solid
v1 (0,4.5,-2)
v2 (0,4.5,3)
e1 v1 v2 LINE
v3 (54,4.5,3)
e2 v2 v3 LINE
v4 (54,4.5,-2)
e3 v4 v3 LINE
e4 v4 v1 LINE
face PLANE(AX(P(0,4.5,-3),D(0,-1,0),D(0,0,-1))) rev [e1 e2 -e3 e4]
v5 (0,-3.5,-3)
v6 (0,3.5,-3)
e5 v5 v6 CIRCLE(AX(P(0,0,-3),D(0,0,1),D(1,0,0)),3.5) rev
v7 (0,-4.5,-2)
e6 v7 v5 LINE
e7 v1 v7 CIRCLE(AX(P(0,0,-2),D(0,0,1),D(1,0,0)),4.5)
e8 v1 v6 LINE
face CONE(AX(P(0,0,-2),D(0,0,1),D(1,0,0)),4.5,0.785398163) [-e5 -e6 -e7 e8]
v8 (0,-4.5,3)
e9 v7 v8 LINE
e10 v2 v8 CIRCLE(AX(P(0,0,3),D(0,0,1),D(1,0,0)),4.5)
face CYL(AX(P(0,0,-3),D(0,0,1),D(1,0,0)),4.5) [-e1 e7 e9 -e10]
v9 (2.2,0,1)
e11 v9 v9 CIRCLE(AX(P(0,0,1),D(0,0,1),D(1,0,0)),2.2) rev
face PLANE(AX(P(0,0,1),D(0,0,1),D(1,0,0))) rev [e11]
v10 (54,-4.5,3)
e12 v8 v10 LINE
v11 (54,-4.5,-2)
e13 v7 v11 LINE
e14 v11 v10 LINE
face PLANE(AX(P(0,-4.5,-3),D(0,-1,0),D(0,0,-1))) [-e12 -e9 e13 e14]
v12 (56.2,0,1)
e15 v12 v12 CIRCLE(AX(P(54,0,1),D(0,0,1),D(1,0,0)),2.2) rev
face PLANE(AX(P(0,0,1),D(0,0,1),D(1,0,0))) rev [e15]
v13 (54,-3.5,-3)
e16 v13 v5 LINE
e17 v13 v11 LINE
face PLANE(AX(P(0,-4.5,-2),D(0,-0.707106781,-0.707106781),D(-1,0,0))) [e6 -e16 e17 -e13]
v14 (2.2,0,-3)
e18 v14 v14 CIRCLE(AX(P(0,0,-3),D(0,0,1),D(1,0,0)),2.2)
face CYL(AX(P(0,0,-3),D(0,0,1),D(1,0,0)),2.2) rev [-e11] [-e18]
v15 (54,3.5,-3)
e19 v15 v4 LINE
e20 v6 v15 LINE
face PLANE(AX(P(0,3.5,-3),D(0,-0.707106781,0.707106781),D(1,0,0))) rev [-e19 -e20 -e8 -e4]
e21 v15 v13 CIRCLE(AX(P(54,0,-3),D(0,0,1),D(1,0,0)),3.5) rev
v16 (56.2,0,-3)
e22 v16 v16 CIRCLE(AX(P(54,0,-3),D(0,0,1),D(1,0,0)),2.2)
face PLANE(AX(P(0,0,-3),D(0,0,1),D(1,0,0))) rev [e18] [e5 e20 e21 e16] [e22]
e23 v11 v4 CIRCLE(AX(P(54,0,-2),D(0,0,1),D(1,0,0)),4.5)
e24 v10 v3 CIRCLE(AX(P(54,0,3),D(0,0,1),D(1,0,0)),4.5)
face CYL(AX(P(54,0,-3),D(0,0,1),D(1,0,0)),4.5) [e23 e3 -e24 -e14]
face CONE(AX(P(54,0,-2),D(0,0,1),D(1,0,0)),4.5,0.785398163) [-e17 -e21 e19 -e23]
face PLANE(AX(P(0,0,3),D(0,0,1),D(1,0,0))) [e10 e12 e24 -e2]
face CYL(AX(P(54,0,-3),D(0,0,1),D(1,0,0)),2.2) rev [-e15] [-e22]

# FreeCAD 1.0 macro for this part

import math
import FreeCAD as App
import Part
import Sketcher


def edges_at(feature, points):
    """Names of the edges that pass closest to the given points."""
    edges = feature.Shape.Edges
    near = lambda p: min(range(len(edges)), key=lambda i: edges[i].distToShape(Part.Vertex(*p))[0])
    return sorted({f"Edge{near(p) + 1}" for p in points})

doc = App.newDocument("Part")
body = doc.addObject("PartDesign::Body", "Body")

sketch1 = body.newObject("Sketcher::SketchObject", "Sketch")
sketch1.AttachmentSupport = (doc.getObject("XY_Plane"), [""])
sketch1.MapMode = "FlatFace"
sketch1.addGeometry([
    Part.ArcOfCircle(Part.Circle(App.Vector(0, 0, 0), App.Vector(0, 0, 1), 4.5), math.radians(90), math.radians(270)),
    Part.LineSegment(App.Vector(0, -4.5, 0), App.Vector(54, -4.5, 0)),
    Part.ArcOfCircle(Part.Circle(App.Vector(54, 0, 0), App.Vector(0, 0, 1), 4.5), math.radians(-90), math.radians(90)),
    Part.LineSegment(App.Vector(54, 4.5, 0), App.Vector(0, 4.5, 0)),
    Part.Circle(App.Vector(0, 0, 0), App.Vector(0, 0, 1), 2.2),
    Part.Circle(App.Vector(54, 0, 0), App.Vector(0, 0, 1), 2.2),
], False)
sketch1.addConstraint([
    Sketcher.Constraint("Tangent", 0, 2, 1, 1),
    Sketcher.Constraint("Tangent", 1, 2, 2, 1),
    Sketcher.Constraint("Tangent", 2, 2, 3, 1),
    Sketcher.Constraint("Tangent", 3, 2, 0, 1),
    Sketcher.Constraint("Horizontal", 1),
    Sketcher.Constraint("Horizontal", 3),
    Sketcher.Constraint("Coincident", 0, 3, -1, 1),
    Sketcher.Constraint("Coincident", 4, 3, -1, 1),
    Sketcher.Constraint("Coincident", 5, 3, 2, 3),
    Sketcher.Constraint("Equal", 4, 5),
    Sketcher.Constraint("Diameter", 4, 4.4),
    Sketcher.Constraint("Radius", 0, 4.5),
    Sketcher.Constraint("DistanceX", 1, 1, 1, 2, 54.0),
])
pad1 = body.newObject("PartDesign::Pad", "Pad")
pad1.Profile = sketch1
pad1.Type = "TwoLengths"
pad1.Length = 3
pad1.Length2 = 3

sketch2 = body.newObject("Sketcher::SketchObject", "Sketch001")
sketch2.AttachmentSupport = (doc.getObject("XY_Plane"), [""])
sketch2.MapMode = "FlatFace"
sketch2.AttachmentOffset = App.Placement(App.Vector(0, 0, 1), App.Rotation())
sketch2.addGeometry([
    Part.Circle(App.Vector(54, 0, 0), App.Vector(0, 0, 1), 2.2),
    Part.Circle(App.Vector(0, 0, 0), App.Vector(0, 0, 1), 2.2),
], False)
sketch2.addConstraint([
    Sketcher.Constraint("Coincident", 1, 3, -1, 1),
    Sketcher.Constraint("Equal", 0, 1),
    Sketcher.Constraint("PointOnObject", 0, 3, -1),
    Sketcher.Constraint("Diameter", 0, 4.4),
    Sketcher.Constraint("DistanceX", -1, 1, 0, 3, 54.0),
])
pad2 = body.newObject("PartDesign::Pad", "Pad001")
pad2.Profile = sketch2
pad2.Length = 2
doc.recompute()

chamfer = body.newObject("PartDesign::Chamfer", "Chamfer")
chamfer.Base = (pad2, edges_at(pad2, [
    (58.5, 0, -3),
    (27, 4.5, -3),
    (-4.5, 0, -3),
    (27, -4.5, -3),
]))
chamfer.Size = 1

doc.recompute()
